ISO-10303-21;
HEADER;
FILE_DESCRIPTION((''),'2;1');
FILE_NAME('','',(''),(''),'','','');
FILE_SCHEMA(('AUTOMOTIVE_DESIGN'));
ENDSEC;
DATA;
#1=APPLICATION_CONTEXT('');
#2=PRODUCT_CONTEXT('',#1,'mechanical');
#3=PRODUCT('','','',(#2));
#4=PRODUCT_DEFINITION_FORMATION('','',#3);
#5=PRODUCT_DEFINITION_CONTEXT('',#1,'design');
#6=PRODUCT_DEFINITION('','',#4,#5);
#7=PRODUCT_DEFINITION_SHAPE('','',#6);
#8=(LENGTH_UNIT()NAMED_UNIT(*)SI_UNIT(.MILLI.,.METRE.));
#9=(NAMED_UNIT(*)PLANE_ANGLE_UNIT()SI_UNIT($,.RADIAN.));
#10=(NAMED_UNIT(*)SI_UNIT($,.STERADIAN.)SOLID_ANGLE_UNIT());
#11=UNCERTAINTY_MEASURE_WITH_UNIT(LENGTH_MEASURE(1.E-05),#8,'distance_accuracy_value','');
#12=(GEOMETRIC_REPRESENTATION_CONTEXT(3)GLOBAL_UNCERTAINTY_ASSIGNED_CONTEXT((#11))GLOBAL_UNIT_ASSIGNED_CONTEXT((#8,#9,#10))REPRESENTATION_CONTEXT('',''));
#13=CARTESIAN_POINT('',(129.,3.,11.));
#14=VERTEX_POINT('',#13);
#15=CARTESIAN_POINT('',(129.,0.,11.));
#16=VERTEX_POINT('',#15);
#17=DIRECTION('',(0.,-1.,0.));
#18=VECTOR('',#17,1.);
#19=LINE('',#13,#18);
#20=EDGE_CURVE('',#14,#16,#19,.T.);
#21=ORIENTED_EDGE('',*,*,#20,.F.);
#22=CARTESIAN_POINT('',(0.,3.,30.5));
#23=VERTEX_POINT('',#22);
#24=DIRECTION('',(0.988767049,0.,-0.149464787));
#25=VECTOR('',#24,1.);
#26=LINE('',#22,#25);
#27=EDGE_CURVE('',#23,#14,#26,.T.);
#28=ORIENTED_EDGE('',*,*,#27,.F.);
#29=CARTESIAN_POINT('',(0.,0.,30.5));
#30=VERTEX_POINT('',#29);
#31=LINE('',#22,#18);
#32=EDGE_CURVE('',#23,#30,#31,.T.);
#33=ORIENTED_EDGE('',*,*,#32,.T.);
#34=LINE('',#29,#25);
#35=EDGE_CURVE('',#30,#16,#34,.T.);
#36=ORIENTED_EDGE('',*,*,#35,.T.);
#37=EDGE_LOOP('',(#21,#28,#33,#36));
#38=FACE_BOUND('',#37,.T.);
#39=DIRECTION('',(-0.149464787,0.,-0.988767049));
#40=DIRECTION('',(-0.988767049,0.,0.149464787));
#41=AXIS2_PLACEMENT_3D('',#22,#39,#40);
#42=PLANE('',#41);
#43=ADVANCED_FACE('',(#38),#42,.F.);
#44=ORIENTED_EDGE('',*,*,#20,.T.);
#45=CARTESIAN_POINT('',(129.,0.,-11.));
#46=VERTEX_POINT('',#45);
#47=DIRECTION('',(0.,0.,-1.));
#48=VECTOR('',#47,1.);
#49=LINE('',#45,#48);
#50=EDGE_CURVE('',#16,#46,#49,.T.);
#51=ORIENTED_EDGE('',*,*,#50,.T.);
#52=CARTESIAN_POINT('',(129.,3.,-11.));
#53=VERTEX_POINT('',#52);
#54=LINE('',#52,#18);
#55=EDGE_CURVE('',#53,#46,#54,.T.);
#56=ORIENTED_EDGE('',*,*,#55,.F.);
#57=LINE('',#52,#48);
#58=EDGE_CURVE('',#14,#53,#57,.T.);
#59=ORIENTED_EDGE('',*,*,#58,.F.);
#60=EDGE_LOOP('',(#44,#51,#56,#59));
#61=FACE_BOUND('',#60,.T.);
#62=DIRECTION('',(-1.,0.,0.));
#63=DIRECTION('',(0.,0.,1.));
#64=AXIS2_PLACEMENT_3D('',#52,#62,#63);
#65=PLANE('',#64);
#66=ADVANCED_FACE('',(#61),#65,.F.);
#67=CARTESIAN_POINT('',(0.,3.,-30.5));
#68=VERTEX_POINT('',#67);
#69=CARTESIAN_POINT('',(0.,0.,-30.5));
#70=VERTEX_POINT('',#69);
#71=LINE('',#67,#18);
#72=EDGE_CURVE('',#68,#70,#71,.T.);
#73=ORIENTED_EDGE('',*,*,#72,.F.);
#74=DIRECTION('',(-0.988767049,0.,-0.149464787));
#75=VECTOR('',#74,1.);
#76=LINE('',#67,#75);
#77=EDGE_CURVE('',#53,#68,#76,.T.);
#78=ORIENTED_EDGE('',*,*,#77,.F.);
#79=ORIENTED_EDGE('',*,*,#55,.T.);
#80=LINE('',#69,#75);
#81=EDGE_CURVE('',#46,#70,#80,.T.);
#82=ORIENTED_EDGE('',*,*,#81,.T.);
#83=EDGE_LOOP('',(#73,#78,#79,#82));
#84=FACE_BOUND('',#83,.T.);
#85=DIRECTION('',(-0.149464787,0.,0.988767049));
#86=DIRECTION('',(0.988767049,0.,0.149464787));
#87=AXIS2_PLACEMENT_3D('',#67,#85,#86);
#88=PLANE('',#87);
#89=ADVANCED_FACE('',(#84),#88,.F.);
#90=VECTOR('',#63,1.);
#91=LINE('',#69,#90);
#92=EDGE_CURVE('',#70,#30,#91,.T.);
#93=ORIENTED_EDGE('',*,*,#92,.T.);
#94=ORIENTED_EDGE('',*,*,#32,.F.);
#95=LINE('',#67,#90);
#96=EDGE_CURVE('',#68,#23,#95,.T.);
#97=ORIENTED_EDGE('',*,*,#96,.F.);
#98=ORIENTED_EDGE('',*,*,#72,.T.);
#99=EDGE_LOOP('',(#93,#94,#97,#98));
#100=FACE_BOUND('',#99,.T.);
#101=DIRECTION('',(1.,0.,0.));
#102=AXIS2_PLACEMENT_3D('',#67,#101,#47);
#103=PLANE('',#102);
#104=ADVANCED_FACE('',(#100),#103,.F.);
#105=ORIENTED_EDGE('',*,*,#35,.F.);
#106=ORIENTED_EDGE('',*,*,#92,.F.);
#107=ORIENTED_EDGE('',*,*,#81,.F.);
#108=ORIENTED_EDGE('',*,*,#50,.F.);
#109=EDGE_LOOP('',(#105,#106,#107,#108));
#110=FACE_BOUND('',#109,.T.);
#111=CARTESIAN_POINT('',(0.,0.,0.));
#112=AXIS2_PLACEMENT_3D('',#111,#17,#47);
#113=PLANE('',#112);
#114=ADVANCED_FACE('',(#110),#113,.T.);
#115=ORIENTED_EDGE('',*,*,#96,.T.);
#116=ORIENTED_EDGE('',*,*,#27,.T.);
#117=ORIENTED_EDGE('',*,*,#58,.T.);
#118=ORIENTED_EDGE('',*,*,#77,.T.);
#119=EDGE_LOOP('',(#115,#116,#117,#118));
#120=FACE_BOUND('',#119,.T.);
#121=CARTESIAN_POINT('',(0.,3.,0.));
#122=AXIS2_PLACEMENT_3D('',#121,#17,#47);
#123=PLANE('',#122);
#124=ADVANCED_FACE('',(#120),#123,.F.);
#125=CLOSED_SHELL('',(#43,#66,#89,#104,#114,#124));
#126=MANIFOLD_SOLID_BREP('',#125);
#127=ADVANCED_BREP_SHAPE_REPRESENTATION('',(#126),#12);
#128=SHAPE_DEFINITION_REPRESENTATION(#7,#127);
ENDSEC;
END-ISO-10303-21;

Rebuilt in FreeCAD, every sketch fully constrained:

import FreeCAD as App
import Part
import Sketcher

V = App.Vector
Q = App.Units.Quantity

doc = App.newDocument("Part")
body = doc.addObject("PartDesign::Body", "Body")

sketch1 = body.newObject("Sketcher::SketchObject", "Sketch")
sketch1.AttachmentSupport = (doc.getObject("XZ_Plane"), [""])
sketch1.MapMode = "FlatFace"
sketch1.addGeometry([
    Part.LineSegment(V(0, -30, 0), V(0, 30, 0)),
    Part.LineSegment(V(0, 30, 0), V(129, 11, 0)),
    Part.LineSegment(V(129, 11, 0), V(129, -11, 0)),
    Part.LineSegment(V(129, -11, 0), V(0, -30, 0)),
], False)
sketch1.addConstraint([
    Sketcher.Constraint("Coincident", 0, 2, 1, 1),
    Sketcher.Constraint("Coincident", 1, 2, 2, 1),
    Sketcher.Constraint("Coincident", 2, 2, 3, 1),
    Sketcher.Constraint("Coincident", 3, 2, 0, 1),
    Sketcher.Constraint("Vertical", 0),
    Sketcher.Constraint("Vertical", 2),
    Sketcher.Constraint("Symmetric", 0, 2, 3, 2, -1, 1),
    Sketcher.Constraint("Equal", 1, 3),
    Sketcher.Constraint("DistanceY", 0, 1, 0, 2, Q("61 mm")),
    Sketcher.Constraint("DistanceY", 2, 2, 2, 1, Q("22 mm")),
    Sketcher.Constraint("DistanceX", -1, 1, 1, 2, Q("129 mm")),
])
pad1 = body.newObject("PartDesign::Pad", "Pad")
pad1.Profile = sketch1
pad1.Length = 3
pad1.Reversed = True

doc.recompute()
